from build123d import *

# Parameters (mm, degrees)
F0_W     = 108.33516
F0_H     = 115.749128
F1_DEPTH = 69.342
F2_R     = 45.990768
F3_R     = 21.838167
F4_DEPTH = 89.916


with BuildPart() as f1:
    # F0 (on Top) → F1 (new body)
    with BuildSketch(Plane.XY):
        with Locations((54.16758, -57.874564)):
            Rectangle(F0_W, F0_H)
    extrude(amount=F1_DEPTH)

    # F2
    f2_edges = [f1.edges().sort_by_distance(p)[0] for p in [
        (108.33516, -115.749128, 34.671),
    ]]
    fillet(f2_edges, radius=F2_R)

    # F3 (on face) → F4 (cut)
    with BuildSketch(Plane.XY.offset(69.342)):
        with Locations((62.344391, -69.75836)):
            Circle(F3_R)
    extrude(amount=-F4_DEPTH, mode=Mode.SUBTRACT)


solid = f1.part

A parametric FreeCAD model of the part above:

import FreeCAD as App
import Part
import Sketcher
Q = App.Units.Quantity


def edges_at(feature, points):
    """Names of the edges that pass closest to the given points."""
    edges = feature.Shape.Edges
    near = lambda p: min(range(len(edges)), key=lambda i: edges[i].distToShape(Part.Vertex(*p))[0])
    return sorted({f"Edge{near(p) + 1}" for p in points})

doc = App.newDocument("Part")
body = doc.addObject("PartDesign::Body", "Body")

# Sketch on XY plane
sketch1 = body.newObject("Sketcher::SketchObject", "Sketch")
sketch1.AttachmentSupport = (doc.getObject("XY_Plane"), [""])
sketch1.MapMode = "FlatFace"
sketch1.addGeometry([
    Part.LineSegment(App.Vector(0, 0, 0), App.Vector(0, -116, 0)),
    Part.LineSegment(App.Vector(0, -116, 0), App.Vector(108, -116, 0)),
    Part.LineSegment(App.Vector(108, -116, 0), App.Vector(108, 0, 0)),
    Part.LineSegment(App.Vector(108, 0, 0), App.Vector(0, 0, 0)),
], False)
sketch1.addConstraint([
    Sketcher.Constraint("Coincident", 0, 2, 1, 1),
    Sketcher.Constraint("Coincident", 1, 2, 2, 1),
    Sketcher.Constraint("Coincident", 2, 2, 3, 1),
    Sketcher.Constraint("Coincident", 3, 2, 0, 1),
    Sketcher.Constraint("Vertical", 0),
    Sketcher.Constraint("Horizontal", 1),
    Sketcher.Constraint("Vertical", 2),
    Sketcher.Constraint("Horizontal", 3),
    Sketcher.Constraint("Coincident", 3, 2, -1, 1),
    Sketcher.Constraint("DistanceX", 1, 1, 1, 2, 108.33516),
    Sketcher.Constraint("DistanceY", 0, 2, 0, 1, 115.749128),
])
pad1 = body.newObject("PartDesign::Pad", "Pad")
pad1.Profile = sketch1
pad1.Length = Q("2.73 in")
doc.recompute()

fillet = body.newObject("PartDesign::Fillet", "Fillet")
fillet.Base = (pad1, edges_at(pad1, [(108.335, -115.749, 34.671)]))
fillet.Radius = 45.990768

# Sketch on XY plane
sketch2 = body.newObject("Sketcher::SketchObject", "Sketch001")
sketch2.AttachmentSupport = (doc.getObject("XY_Plane"), [""])
sketch2.MapMode = "FlatFace"
sketch2.AttachmentOffset = App.Placement(App.Vector(0, 0, 2.73 * 25.4), App.Rotation())
sketch2.addGeometry(Part.Circle(App.Vector(62, -70, 0), App.Vector(0, 0, 1), 22), False)
sketch2.addConstraint([
    Sketcher.Constraint("Diameter", 0, 43.676334),
    Sketcher.Constraint("DistanceX", -1, 1, 0, 3, 62.344391),
    Sketcher.Constraint("DistanceY", 0, 3, -1, 1, 69.75836),
])
pocket1 = body.newObject("PartDesign::Pocket", "Pocket")
pocket1.Profile = sketch2
pocket1.Length = Q("3.54 in")

doc.recompute()
